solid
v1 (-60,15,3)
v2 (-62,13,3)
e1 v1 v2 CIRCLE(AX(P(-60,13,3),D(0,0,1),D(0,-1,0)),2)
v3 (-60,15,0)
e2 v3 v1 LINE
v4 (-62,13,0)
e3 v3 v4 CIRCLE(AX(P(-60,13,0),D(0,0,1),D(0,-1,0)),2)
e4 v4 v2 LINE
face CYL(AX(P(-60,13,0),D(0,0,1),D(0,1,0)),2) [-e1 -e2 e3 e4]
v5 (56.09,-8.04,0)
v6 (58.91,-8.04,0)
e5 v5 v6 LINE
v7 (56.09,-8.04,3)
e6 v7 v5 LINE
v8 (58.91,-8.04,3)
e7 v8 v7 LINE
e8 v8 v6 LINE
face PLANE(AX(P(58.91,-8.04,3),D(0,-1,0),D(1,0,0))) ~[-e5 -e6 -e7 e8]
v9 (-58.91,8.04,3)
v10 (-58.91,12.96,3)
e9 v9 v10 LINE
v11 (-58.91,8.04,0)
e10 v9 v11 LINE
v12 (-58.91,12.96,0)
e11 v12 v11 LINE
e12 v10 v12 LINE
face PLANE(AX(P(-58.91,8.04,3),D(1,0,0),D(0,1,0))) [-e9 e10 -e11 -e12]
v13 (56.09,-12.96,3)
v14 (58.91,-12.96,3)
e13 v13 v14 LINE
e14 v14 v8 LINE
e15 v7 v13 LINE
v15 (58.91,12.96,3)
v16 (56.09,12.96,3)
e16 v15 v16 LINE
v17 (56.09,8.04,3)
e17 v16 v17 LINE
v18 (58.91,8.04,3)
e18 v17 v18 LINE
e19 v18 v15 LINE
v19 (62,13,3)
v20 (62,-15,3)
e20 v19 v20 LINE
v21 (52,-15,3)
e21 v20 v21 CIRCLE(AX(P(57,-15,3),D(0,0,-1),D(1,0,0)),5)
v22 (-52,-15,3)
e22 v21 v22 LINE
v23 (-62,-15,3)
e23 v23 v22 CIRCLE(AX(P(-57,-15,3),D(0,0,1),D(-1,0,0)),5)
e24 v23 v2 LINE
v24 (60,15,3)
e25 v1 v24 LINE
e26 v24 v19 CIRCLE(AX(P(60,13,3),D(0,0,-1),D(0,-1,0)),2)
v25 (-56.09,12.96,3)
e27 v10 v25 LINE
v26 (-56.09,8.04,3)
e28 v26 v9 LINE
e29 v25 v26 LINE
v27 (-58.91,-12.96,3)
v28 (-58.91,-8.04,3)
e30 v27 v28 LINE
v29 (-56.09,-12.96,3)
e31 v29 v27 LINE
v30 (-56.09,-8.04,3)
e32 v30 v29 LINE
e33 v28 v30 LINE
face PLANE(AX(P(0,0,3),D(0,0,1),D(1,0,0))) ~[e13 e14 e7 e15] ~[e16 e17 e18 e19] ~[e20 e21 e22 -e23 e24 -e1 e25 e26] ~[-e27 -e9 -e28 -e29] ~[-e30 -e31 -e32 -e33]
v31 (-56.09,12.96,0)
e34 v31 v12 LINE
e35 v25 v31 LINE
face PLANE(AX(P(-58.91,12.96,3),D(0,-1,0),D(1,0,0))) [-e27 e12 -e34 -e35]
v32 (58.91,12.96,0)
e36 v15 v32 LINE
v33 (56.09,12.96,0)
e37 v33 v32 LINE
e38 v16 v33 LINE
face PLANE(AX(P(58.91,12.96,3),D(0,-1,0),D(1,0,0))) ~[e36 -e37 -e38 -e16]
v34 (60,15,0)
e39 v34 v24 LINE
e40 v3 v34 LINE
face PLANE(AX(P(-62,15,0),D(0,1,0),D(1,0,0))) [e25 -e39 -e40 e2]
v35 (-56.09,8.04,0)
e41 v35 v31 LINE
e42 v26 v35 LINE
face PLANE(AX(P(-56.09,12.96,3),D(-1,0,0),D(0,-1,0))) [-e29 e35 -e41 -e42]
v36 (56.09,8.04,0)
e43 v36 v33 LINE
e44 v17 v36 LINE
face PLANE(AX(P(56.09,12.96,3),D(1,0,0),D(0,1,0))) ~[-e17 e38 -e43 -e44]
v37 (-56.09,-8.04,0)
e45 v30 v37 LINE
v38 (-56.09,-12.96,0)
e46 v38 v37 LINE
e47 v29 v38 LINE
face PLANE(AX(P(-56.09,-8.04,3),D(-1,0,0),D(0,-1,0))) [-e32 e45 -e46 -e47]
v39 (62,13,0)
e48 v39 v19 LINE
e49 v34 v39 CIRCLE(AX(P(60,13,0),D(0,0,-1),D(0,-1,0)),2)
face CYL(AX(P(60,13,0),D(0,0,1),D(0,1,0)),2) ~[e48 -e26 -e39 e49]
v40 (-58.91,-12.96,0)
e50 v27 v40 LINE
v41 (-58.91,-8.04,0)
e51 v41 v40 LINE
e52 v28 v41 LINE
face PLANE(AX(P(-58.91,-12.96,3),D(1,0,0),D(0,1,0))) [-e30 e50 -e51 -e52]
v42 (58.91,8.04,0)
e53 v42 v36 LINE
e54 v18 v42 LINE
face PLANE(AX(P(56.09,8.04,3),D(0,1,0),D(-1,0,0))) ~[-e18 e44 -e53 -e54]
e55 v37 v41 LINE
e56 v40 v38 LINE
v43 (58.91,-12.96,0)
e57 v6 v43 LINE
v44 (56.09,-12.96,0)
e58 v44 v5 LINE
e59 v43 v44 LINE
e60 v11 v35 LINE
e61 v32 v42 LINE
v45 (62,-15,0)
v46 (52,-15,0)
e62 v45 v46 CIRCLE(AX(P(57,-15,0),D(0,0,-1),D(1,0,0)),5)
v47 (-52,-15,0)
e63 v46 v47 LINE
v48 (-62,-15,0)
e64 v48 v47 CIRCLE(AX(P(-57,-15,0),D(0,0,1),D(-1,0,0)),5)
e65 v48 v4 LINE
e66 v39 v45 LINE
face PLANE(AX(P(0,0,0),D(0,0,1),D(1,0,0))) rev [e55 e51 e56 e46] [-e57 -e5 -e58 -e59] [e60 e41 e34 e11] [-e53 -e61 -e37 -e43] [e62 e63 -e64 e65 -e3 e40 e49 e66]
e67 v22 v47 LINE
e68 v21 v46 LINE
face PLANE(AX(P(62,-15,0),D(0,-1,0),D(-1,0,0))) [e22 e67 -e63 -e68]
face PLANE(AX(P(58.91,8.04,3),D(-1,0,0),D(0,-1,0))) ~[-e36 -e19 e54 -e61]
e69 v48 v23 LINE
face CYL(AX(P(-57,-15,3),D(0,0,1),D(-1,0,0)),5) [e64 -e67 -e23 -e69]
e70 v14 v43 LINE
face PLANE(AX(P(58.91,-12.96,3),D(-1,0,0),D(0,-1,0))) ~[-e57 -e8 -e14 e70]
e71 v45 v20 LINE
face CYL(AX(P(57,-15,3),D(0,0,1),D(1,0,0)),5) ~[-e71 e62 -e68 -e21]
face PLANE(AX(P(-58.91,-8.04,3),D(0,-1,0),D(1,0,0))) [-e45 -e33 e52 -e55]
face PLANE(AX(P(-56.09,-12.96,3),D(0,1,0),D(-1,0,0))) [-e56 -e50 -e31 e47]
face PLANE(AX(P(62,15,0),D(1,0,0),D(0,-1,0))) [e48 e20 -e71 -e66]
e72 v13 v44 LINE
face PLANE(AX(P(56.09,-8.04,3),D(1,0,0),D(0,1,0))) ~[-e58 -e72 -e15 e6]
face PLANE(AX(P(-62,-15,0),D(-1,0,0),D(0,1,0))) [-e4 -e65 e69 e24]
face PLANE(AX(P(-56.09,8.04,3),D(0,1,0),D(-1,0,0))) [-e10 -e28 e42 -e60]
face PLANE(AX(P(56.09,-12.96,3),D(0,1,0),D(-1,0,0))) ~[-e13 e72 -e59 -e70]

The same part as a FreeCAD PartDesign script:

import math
import FreeCAD as App
import Part
import Sketcher
Q = App.Units.Quantity


def edges_at(feature, points):
    """Names of the edges that pass closest to the given points."""
    edges = feature.Shape.Edges
    near = lambda p: min(range(len(edges)), key=lambda i: edges[i].distToShape(Part.Vertex(*p))[0])
    return sorted({f"Edge{near(p) + 1}" for p in points})

doc = App.newDocument("Part")
body = doc.addObject("PartDesign::Body", "Body")

sketch1 = body.newObject("Sketcher::SketchObject", "Sketch")
sketch1.AttachmentSupport = (doc.getObject("XY_Plane"), [""])
sketch1.MapMode = "FlatFace"
sketch1.addGeometry(Part.LineSegment(App.Vector(62, 15, 0), App.Vector(-62, 15, 0)), False)
sketch1.addGeometry(Part.LineSegment(App.Vector(-62, 15, 0), App.Vector(-62, -15, 0)), False)
sketch1.addGeometry(Part.LineSegment(App.Vector(-62, -15, 0), App.Vector(62, -15, 0)), False)
sketch1.addGeometry(Part.LineSegment(App.Vector(62, -15, 0), App.Vector(62, 15, 0)), False)
sketch1.addConstraint(Sketcher.Constraint("Coincident", 0, 2, 1, 1))
sketch1.addConstraint(Sketcher.Constraint("Coincident", 1, 2, 2, 1))
sketch1.addConstraint(Sketcher.Constraint("Coincident", 2, 2, 3, 1))
sketch1.addConstraint(Sketcher.Constraint("Coincident", 3, 2, 0, 1))
sketch1.addConstraint(Sketcher.Constraint("Horizontal", 0))
sketch1.addConstraint(Sketcher.Constraint("Vertical", 1))
sketch1.addConstraint(Sketcher.Constraint("Horizontal", 2))
sketch1.addConstraint(Sketcher.Constraint("Vertical", 3))
sketch1.addConstraint(Sketcher.Constraint("Symmetric", 0, 2, 2, 2, -1, 1))
sketch1.addConstraint(Sketcher.Constraint("DistanceX", 0, 2, 0, 1, Q("124 mm")))
sketch1.addConstraint(Sketcher.Constraint("DistanceY", 1, 2, 1, 1, Q("30 mm")))
pad1 = body.newObject("PartDesign::Pad", "Pad")
pad1.Profile = sketch1
pad1.Length = 3

sketch2 = body.newObject("Sketcher::SketchObject", "Sketch001")
sketch2.AttachmentSupport = (doc.getObject("XY_Plane"), [""])
sketch2.MapMode = "FlatFace"
sketch2.AttachmentOffset = App.Placement(App.Vector(0, 0, 3), App.Rotation())
sketch2.addGeometry(Part.LineSegment(App.Vector(-52, -15, 0), App.Vector(-62, -15, 0)), False)
sketch2.addGeometry(Part.ArcOfCircle(Part.Circle(App.Vector(-57, -15, 0), App.Vector(0, 0, 1), 5), math.radians(180), math.radians(360)), False)
sketch2.addConstraint(Sketcher.Constraint("Coincident", 0, 1, 1, 2))
sketch2.addConstraint(Sketcher.Constraint("Coincident", 1, 1, 0, 2))
sketch2.addConstraint(Sketcher.Constraint("Horizontal", 0))
sketch2.addConstraint(Sketcher.Constraint("Horizontal", 1, 3, 0, 1))
sketch2.addConstraint(Sketcher.Constraint("Radius", 1, Q("5 mm")))
sketch2.addConstraint(Sketcher.Constraint("DistanceX", 1, 3, -1, 1, Q("57 mm")))
sketch2.addConstraint(Sketcher.Constraint("DistanceY", 1, 3, -1, 1, Q("15 mm")))
pad2 = body.newObject("PartDesign::Pad", "Pad001")
pad2.Profile = sketch2
pad2.Length = 3
pad2.Reversed = True
doc.recompute()

mirrored = body.newObject("PartDesign::Mirrored", "Mirrored")
mirrored.Originals = [pad2]
mirrored.MirrorPlane = (doc.getObject("YZ_Plane"), [""])
body.Tip = mirrored
doc.recompute()

fillet = body.newObject("PartDesign::Fillet", "Fillet")
fillet.Base = (mirrored, edges_at(mirrored, [(-62, 15, 1.5)]))
fillet.Radius = 2
doc.recompute()

fillet2 = body.newObject("PartDesign::Fillet", "Fillet001")
fillet2.Base = (fillet, edges_at(fillet, [(62, 15, 1.5)]))
fillet2.Radius = 2

sketch3 = body.newObject("Sketcher::SketchObject", "Sketch002")
sketch3.AttachmentSupport = (doc.getObject("XY_Plane"), [""])
sketch3.MapMode = "FlatFace"
sketch3.AttachmentOffset = App.Placement(App.Vector(0, 0, 3), App.Rotation())
sketch3.addGeometry(Part.LineSegment(App.Vector(-56.1, 13, 0), App.Vector(-58.9, 13, 0)), False)
sketch3.addGeometry(Part.LineSegment(App.Vector(-58.9, 13, 0), App.Vector(-58.9, 8, 0)), False)
sketch3.addGeometry(Part.LineSegment(App.Vector(-58.9, 8, 0), App.Vector(-56.1, 8, 0)), False)
sketch3.addGeometry(Part.LineSegment(App.Vector(-56.1, 8, 0), App.Vector(-56.1, 13, 0)), False)
sketch3.addGeometry(Part.LineSegment(App.Vector(-56.1, -8, 0), App.Vector(-58.9, -8, 0)), False)
sketch3.addGeometry(Part.LineSegment(App.Vector(-58.9, -8, 0), App.Vector(-58.9, -13, 0)), False)
sketch3.addGeometry(Part.LineSegment(App.Vector(-58.9, -13, 0), App.Vector(-56.1, -13, 0)), False)
sketch3.addGeometry(Part.LineSegment(App.Vector(-56.1, -13, 0), App.Vector(-56.1, -8, 0)), False)
sketch3.addConstraint(Sketcher.Constraint("Coincident", 0, 2, 1, 1))
sketch3.addConstraint(Sketcher.Constraint("Coincident", 1, 2, 2, 1))
sketch3.addConstraint(Sketcher.Constraint("Coincident", 2, 2, 3, 1))
sketch3.addConstraint(Sketcher.Constraint("Coincident", 3, 2, 0, 1))
sketch3.addConstraint(Sketcher.Constraint("Coincident", 4, 2, 5, 1))
sketch3.addConstraint(Sketcher.Constraint("Coincident", 5, 2, 6, 1))
sketch3.addConstraint(Sketcher.Constraint("Coincident", 6, 2, 7, 1))
sketch3.addConstraint(Sketcher.Constraint("Coincident", 7, 2, 4, 1))
sketch3.addConstraint(Sketcher.Constraint("Horizontal", 0))
sketch3.addConstraint(Sketcher.Constraint("Vertical", 1))
sketch3.addConstraint(Sketcher.Constraint("Horizontal", 2))
sketch3.addConstraint(Sketcher.Constraint("Vertical", 3))
sketch3.addConstraint(Sketcher.Constraint("Horizontal", 4))
sketch3.addConstraint(Sketcher.Constraint("Vertical", 5))
sketch3.addConstraint(Sketcher.Constraint("Horizontal", 6))
sketch3.addConstraint(Sketcher.Constraint("Vertical", 7))
sketch3.addConstraint(Sketcher.Constraint("Symmetric", 1, 2, 4, 2, -1))
sketch3.addConstraint(Sketcher.Constraint("Symmetric", 3, 2, 6, 2, -1))
sketch3.addConstraint(Sketcher.Constraint("DistanceX", 0, 2, 0, 1, Q("2.82 mm")))
sketch3.addConstraint(Sketcher.Constraint("DistanceY", 1, 2, 1, 1, Q("4.92 mm")))
sketch3.addConstraint(Sketcher.Constraint("DistanceY", 4, 2, 0, 2, Q("21 mm")))
sketch3.addConstraint(Sketcher.Constraint("DistanceX", 0, 2, -1, 1, Q("58.91 mm")))
pocket1 = body.newObject("PartDesign::Pocket", "Pocket")
pocket1.Profile = sketch3
pocket1.Type = "ThroughAll"
doc.recompute()

mirrored2 = body.newObject("PartDesign::Mirrored", "Mirrored001")
mirrored2.Originals = [pocket1]
mirrored2.MirrorPlane = (doc.getObject("YZ_Plane"), [""])
body.Tip = mirrored2

doc.recompute()
